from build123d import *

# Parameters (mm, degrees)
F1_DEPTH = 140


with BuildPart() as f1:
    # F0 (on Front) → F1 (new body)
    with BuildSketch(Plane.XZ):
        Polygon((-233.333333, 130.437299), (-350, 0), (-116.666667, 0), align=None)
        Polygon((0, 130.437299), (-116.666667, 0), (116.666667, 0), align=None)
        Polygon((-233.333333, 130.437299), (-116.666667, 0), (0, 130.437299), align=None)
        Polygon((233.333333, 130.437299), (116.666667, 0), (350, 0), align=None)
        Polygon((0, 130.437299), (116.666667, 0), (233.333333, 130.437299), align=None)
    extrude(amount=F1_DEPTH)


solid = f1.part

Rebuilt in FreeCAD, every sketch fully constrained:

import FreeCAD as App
import Part
import Sketcher

V = App.Vector


def add_polygon(sketch, points):
    """Adds a closed chain of lines whose ends are joined by coincident constraints."""
    first, n = sketch.GeometryCount, len(points)
    for a, b in zip(points, points[1:] + points[:1]):
        sketch.addGeometry(Part.LineSegment(App.Vector(*a, 0), App.Vector(*b, 0)), False)
    for i in range(n):
        sketch.addConstraint(Sketcher.Constraint("Coincident", first + i, 2, first + (i + 1) % n, 1))

doc = App.newDocument("Part")
body = doc.addObject("PartDesign::Body", "Body")

# Sketch on XZ plane
sketch1 = doc.addObject("Sketcher::SketchObject", "Sketch")
body.addObject(sketch1)
sketch1.AttachmentSupport = (doc.XZ_Plane, [""])
sketch1.MapMode = "FlatFace"
add_polygon(sketch1, [(-233.333333, 130.437299), (-350, 0), (350, 0), (233.333333, 130.437299)])  # lines 0-3
sketch1.addConstraint([
    Sketcher.Constraint("Horizontal", 1),
    Sketcher.Constraint("Horizontal", 3),
    Sketcher.Constraint("Symmetric", 0, 2, 1, 2, -1, 1),
    Sketcher.Constraint("Equal", 0, 2),
    Sketcher.Constraint("DistanceX", 1, 1, 1, 2, 700.0),
    Sketcher.Constraint("Distance", 0, 175.0),
    Sketcher.Constraint("DistanceY", -1, 1, 2, 2, 130.437299),
])
pad1 = doc.addObject("PartDesign::Pad", "Pad")
body.addObject(pad1)
pad1.Profile = sketch1
pad1.Length = 140

doc.recompute()
